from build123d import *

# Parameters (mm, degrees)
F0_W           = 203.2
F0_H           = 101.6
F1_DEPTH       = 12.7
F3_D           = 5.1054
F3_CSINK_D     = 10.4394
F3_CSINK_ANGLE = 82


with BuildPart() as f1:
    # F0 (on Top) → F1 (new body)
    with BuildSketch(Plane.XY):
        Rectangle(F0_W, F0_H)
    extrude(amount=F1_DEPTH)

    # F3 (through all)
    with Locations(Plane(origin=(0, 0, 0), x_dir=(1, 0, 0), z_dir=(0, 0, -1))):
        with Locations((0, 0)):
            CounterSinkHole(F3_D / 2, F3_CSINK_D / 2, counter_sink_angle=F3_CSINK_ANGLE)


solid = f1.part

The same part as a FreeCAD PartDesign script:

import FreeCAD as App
import Part
import Sketcher

V = App.Vector
Q = App.Units.Quantity


def add_polygon(sketch, points):
    """Adds a closed chain of lines whose ends are joined by coincident constraints."""
    first, n = sketch.GeometryCount, len(points)
    for a, b in zip(points, points[1:] + points[:1]):
        sketch.addGeometry(Part.LineSegment(App.Vector(*a, 0), App.Vector(*b, 0)), False)
    for i in range(n):
        sketch.addConstraint(Sketcher.Constraint("Coincident", first + i, 2, first + (i + 1) % n, 1))

doc = App.newDocument("Part")
body = doc.addObject("PartDesign::Body", "Body")

sketch1 = body.newObject("Sketcher::SketchObject", "Sketch")
sketch1.AttachmentSupport = (doc.getObject("XY_Plane"), [""])
sketch1.MapMode = "FlatFace"
add_polygon(sketch1, [(-101.6, 50.8), (-101.6, -50.8), (101.6, -50.8), (101.6, 50.8)])
sketch1.addConstraint([
    Sketcher.Constraint("Vertical", 0),
    Sketcher.Constraint("Horizontal", 1),
    Sketcher.Constraint("Vertical", 2),
    Sketcher.Constraint("Horizontal", 3),
    Sketcher.Constraint("Symmetric", 0, 2, 2, 2, -1, 1),
    Sketcher.Constraint("DistanceX", 1, 1, 1, 2, Q("8 in")),
    Sketcher.Constraint("DistanceY", 0, 2, 0, 1, Q("4 in")),
])
pad1 = body.newObject("PartDesign::Pad", "Pad")
pad1.Profile = sketch1
pad1.Length = Q("0.5 in")

sketch2 = body.newObject("Sketcher::SketchObject", "Sketch001")
sketch2.AttachmentSupport = (doc.getObject("XY_Plane"), [""])
sketch2.MapMode = "FlatFace"
sketch2.addGeometry(Part.Circle(V(0, 0, 0), V(0, 0, 1), 2.5527), False)
sketch2.addConstraint([
    Sketcher.Constraint("Coincident", 0, 3, -1, 1),
    Sketcher.Constraint("Diameter", 0, Q("0.201 in")),
])
doc.recompute()
hole = body.newObject("PartDesign::Hole", "Hole")
hole.Profile = sketch2
hole.ThreadType = "None"
hole.Diameter = Q("0.201 in")
hole.DepthType = "ThroughAll"
hole.HoleCutType = "Countersink"
hole.HoleCutDiameter = Q("0.411 in")
hole.HoleCutCountersinkAngle = 82
hole.Reversed = True

doc.recompute()
